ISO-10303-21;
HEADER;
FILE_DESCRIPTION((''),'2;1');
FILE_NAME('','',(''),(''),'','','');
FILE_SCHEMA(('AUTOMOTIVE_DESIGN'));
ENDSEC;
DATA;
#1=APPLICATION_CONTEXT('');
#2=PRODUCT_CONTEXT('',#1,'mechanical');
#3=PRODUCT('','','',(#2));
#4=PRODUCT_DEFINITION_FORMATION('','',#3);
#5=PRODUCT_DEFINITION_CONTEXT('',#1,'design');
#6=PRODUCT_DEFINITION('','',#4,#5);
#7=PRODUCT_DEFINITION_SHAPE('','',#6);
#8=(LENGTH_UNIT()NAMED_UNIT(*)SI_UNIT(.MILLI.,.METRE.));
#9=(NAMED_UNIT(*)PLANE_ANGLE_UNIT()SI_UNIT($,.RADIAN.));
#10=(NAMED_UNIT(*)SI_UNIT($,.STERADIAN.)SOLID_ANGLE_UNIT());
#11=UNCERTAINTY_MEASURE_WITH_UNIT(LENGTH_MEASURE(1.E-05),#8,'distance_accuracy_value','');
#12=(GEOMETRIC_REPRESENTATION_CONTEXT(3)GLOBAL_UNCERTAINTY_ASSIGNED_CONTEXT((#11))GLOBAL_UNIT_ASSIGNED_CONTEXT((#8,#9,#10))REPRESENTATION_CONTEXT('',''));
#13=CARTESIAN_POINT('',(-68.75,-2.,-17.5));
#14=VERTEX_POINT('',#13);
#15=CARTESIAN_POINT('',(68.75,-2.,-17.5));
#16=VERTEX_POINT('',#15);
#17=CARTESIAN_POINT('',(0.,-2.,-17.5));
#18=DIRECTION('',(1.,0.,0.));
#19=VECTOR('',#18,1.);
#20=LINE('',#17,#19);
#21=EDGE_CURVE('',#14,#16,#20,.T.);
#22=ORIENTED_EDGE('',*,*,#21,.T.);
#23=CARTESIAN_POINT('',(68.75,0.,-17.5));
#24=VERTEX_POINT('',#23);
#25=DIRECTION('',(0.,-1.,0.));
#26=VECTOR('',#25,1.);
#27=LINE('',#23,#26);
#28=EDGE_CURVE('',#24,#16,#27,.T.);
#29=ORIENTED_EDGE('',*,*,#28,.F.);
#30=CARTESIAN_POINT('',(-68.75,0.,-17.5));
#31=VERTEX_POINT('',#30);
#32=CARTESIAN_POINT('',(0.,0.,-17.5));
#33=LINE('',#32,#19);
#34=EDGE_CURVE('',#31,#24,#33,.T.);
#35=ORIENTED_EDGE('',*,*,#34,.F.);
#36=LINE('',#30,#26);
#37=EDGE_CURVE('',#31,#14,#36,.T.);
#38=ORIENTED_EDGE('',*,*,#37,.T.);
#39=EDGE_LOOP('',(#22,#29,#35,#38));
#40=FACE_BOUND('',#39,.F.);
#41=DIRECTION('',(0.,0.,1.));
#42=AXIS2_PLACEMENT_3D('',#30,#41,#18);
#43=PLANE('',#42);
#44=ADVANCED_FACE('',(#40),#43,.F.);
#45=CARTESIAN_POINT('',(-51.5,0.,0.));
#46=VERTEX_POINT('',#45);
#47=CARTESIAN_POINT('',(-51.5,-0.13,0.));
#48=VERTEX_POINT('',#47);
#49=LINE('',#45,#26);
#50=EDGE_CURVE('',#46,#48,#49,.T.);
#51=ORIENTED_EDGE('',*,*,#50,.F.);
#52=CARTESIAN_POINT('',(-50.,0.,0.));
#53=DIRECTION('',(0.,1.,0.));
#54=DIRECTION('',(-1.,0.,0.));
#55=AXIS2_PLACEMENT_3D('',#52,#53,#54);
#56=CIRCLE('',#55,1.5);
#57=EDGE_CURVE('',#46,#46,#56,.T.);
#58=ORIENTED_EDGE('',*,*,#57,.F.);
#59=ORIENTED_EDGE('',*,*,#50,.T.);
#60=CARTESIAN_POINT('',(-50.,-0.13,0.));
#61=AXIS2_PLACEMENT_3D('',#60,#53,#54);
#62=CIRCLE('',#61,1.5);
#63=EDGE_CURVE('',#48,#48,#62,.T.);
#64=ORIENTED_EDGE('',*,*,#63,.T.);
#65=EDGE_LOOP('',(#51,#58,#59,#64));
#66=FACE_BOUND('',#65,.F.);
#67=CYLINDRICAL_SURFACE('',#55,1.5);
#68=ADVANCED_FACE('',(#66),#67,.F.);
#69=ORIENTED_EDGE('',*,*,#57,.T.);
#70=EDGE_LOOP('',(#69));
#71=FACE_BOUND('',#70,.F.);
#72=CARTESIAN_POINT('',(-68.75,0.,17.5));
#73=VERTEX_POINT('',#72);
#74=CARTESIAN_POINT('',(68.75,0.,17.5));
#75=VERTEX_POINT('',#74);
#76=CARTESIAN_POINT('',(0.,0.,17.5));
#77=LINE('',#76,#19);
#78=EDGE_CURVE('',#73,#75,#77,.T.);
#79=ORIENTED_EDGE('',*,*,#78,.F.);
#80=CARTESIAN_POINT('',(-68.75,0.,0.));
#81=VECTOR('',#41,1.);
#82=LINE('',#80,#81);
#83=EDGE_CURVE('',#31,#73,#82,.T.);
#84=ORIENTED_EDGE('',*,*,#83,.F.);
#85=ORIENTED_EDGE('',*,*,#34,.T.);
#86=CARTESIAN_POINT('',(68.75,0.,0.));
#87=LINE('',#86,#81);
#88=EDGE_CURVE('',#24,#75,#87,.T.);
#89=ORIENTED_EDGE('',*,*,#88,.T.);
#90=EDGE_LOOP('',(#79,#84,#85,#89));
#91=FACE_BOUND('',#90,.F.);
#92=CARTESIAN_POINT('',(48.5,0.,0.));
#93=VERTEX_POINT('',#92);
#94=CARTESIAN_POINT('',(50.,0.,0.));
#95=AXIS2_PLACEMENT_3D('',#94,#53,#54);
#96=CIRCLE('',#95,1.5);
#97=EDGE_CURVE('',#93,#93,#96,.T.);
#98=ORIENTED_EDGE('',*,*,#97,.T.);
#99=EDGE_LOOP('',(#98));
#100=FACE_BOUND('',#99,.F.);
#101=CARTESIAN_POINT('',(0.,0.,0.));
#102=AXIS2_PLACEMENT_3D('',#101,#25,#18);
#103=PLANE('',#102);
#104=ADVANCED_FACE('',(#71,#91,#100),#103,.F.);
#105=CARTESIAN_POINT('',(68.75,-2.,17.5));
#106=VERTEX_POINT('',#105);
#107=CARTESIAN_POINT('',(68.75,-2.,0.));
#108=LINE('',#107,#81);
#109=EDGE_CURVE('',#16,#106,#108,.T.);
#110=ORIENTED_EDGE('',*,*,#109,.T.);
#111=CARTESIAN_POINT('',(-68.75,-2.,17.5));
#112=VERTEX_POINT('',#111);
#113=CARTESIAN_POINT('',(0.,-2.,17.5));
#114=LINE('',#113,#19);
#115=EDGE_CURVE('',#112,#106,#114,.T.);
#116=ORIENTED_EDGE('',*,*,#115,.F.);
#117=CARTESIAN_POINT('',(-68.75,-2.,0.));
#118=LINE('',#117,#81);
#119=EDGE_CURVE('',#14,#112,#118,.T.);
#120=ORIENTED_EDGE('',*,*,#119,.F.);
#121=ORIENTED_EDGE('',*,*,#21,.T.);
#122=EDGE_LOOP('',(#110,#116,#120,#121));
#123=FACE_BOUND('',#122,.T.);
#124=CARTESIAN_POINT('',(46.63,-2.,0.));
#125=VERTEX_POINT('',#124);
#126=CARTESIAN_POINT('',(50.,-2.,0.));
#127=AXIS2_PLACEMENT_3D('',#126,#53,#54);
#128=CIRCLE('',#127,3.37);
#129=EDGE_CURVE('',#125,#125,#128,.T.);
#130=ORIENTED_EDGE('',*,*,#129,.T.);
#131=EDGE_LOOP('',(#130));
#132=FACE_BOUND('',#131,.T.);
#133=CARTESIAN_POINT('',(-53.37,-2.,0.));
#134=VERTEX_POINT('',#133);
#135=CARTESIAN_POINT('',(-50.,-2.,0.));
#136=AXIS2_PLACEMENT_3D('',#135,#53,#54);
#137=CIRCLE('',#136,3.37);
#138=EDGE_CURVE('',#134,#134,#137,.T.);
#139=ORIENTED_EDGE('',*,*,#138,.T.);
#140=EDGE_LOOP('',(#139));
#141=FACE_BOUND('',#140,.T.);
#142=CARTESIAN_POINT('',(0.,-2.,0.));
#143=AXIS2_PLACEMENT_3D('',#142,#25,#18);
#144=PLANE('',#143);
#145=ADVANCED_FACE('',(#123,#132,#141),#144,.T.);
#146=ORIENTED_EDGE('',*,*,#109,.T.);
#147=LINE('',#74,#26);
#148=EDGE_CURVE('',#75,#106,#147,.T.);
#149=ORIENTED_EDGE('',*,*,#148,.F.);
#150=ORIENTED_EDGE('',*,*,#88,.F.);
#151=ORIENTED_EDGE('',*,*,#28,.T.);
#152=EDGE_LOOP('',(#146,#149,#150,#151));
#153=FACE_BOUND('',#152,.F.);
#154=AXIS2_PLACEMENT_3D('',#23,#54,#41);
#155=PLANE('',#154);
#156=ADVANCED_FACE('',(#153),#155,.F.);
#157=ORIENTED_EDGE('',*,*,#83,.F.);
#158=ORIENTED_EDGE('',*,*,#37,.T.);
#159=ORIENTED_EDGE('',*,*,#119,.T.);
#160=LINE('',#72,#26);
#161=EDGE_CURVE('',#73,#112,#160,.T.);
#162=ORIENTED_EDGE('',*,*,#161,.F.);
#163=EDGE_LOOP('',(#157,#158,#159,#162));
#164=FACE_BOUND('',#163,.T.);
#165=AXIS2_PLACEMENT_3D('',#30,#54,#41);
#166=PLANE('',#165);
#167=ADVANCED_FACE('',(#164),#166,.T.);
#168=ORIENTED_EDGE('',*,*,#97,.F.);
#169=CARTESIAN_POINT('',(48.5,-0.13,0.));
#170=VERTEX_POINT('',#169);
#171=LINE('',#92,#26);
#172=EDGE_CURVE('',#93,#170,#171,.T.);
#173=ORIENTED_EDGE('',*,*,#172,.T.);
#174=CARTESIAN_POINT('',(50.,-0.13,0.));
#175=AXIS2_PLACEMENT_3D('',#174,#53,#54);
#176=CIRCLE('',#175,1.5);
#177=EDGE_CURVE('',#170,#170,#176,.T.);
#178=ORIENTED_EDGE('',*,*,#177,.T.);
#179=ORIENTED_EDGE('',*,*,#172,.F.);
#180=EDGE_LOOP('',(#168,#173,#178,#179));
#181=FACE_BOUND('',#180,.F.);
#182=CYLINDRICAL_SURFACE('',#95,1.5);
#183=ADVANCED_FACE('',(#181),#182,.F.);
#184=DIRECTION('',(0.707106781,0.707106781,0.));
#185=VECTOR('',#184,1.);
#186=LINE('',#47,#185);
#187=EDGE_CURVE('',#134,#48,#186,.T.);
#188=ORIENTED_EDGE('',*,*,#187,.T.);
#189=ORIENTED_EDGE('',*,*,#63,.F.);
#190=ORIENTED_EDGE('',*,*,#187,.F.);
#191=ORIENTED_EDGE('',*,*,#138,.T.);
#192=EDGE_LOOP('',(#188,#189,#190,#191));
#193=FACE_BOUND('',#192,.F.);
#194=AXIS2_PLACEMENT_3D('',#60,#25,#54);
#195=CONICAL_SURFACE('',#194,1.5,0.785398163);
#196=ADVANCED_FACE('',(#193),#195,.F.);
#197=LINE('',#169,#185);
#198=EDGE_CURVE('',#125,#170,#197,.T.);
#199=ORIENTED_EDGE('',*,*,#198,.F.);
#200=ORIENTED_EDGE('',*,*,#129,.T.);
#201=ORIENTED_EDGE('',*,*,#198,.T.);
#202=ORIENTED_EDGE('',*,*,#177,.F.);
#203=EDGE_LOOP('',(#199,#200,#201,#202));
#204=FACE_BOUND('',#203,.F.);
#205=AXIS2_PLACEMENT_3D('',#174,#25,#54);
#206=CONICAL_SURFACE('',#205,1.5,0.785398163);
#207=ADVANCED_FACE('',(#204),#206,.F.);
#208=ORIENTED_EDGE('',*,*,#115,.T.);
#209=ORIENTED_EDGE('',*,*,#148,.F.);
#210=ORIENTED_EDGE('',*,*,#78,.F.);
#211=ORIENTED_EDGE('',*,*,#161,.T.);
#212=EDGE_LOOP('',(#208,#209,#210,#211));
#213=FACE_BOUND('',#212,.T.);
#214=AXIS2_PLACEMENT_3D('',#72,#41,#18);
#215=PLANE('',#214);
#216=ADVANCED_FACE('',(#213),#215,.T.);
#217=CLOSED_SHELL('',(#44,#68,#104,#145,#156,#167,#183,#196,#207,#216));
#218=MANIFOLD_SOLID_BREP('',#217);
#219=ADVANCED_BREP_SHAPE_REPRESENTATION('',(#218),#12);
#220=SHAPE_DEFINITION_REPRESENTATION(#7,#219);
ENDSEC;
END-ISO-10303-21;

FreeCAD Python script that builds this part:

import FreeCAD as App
import Part
import Sketcher
from FreeCAD import Vector


def edges_at(feature, points):
    """Names of the edges that pass closest to the given points."""
    edges = feature.Shape.Edges
    near = lambda p: min(range(len(edges)), key=lambda i: edges[i].distToShape(Part.Vertex(*p))[0])
    return sorted({f"Edge{near(p) + 1}" for p in points})

doc = App.newDocument("Part")
params = doc.addObject("Spreadsheet::Sheet", "Params")
for row, (alias, value) in enumerate([
    ("sketch1_height", "35 mm"),
    ("sketch1_width", "137.5 mm"),
    ("pad1_length", "2 mm"),
    ("sketch2_diameter", "3 mm"),
    ("pocket1_length", "25 mm"),
    ("chamfer_size", "1.87 mm"),
], start=1):
    params.set(f"A{row}", alias)
    params.set(f"B{row}", "=" + value)
    params.setAlias(f"B{row}", alias)

body = doc.addObject("PartDesign::Body", "Body")

# Sketch on XZ plane
sketch1 = body.newObject("Sketcher::SketchObject", "Sketch")
sketch1.AttachmentSupport = (doc.getObject("XZ_Plane"), [""])
sketch1.MapMode = "FlatFace"
sketch1.addGeometry([
    Part.LineSegment(Vector(-68.75, 17.5, 0), Vector(-68.75, -17.5, 0)),
    Part.LineSegment(Vector(-68.75, -17.5, 0), Vector(68.75, -17.5, 0)),
    Part.LineSegment(Vector(68.75, -17.5, 0), Vector(68.75, 17.5, 0)),
    Part.LineSegment(Vector(68.75, 17.5, 0), Vector(-68.75, 17.5, 0)),
], False)
sketch1.addConstraint([
    Sketcher.Constraint("Coincident", 0, 2, 1, 1),
    Sketcher.Constraint("Coincident", 1, 2, 2, 1),
    Sketcher.Constraint("Coincident", 2, 2, 3, 1),
    Sketcher.Constraint("Coincident", 3, 2, 0, 1),
    Sketcher.Constraint("Vertical", 0),
    Sketcher.Constraint("Horizontal", 1),
    Sketcher.Constraint("Vertical", 2),
    Sketcher.Constraint("Horizontal", 3),
    Sketcher.Constraint("Symmetric", 0, 2, 2, 2, -1, 1),
    Sketcher.Constraint("DistanceY", 0, 2, 0, 1, 35.0),
    Sketcher.Constraint("DistanceX", 1, 1, 1, 2, 137.5),
])
sketch1.setExpression("Constraints[9]", "Params.sketch1_height")
sketch1.setExpression("Constraints[10]", "Params.sketch1_width")
pad1 = body.newObject("PartDesign::Pad", "Pad")
pad1.Profile = sketch1
pad1.setExpression("Length", "Params.pad1_length")

# Sketch on XZ plane
sketch2 = body.newObject("Sketcher::SketchObject", "Sketch001")
sketch2.AttachmentSupport = (doc.getObject("XZ_Plane"), [""])
sketch2.MapMode = "FlatFace"
sketch2.addGeometry([
    Part.Circle(Vector(50, 0, 0), Vector(0, 0, 1), 1.5),
    Part.Circle(Vector(-50, 0, 0), Vector(0, 0, 1), 1.5),
], False)
sketch2.addConstraint([
    Sketcher.Constraint("Equal", 0, 1),
    Sketcher.Constraint("Symmetric", 0, 3, 1, 3, -1, 1),
    Sketcher.Constraint("PointOnObject", 0, 3, -1),
    Sketcher.Constraint("Diameter", 0, 3.0),
    Sketcher.Constraint("DistanceX", -1, 1, 0, 3, 50.0),
])
sketch2.setExpression("Constraints[3]", "Params.sketch2_diameter")
pocket1 = body.newObject("PartDesign::Pocket", "Pocket")
pocket1.Profile = sketch2
pocket1.setExpression("Length", "Params.pocket1_length")
pocket1.Reversed = True
doc.recompute()

chamfer = body.newObject("PartDesign::Chamfer", "Chamfer")
chamfer.Base = (pocket1, edges_at(pocket1, [(51.5, -2, 0), (-48.5, -2, 0)]))
chamfer.setExpression("Size", "Params.chamfer_size")

doc.recompute()
